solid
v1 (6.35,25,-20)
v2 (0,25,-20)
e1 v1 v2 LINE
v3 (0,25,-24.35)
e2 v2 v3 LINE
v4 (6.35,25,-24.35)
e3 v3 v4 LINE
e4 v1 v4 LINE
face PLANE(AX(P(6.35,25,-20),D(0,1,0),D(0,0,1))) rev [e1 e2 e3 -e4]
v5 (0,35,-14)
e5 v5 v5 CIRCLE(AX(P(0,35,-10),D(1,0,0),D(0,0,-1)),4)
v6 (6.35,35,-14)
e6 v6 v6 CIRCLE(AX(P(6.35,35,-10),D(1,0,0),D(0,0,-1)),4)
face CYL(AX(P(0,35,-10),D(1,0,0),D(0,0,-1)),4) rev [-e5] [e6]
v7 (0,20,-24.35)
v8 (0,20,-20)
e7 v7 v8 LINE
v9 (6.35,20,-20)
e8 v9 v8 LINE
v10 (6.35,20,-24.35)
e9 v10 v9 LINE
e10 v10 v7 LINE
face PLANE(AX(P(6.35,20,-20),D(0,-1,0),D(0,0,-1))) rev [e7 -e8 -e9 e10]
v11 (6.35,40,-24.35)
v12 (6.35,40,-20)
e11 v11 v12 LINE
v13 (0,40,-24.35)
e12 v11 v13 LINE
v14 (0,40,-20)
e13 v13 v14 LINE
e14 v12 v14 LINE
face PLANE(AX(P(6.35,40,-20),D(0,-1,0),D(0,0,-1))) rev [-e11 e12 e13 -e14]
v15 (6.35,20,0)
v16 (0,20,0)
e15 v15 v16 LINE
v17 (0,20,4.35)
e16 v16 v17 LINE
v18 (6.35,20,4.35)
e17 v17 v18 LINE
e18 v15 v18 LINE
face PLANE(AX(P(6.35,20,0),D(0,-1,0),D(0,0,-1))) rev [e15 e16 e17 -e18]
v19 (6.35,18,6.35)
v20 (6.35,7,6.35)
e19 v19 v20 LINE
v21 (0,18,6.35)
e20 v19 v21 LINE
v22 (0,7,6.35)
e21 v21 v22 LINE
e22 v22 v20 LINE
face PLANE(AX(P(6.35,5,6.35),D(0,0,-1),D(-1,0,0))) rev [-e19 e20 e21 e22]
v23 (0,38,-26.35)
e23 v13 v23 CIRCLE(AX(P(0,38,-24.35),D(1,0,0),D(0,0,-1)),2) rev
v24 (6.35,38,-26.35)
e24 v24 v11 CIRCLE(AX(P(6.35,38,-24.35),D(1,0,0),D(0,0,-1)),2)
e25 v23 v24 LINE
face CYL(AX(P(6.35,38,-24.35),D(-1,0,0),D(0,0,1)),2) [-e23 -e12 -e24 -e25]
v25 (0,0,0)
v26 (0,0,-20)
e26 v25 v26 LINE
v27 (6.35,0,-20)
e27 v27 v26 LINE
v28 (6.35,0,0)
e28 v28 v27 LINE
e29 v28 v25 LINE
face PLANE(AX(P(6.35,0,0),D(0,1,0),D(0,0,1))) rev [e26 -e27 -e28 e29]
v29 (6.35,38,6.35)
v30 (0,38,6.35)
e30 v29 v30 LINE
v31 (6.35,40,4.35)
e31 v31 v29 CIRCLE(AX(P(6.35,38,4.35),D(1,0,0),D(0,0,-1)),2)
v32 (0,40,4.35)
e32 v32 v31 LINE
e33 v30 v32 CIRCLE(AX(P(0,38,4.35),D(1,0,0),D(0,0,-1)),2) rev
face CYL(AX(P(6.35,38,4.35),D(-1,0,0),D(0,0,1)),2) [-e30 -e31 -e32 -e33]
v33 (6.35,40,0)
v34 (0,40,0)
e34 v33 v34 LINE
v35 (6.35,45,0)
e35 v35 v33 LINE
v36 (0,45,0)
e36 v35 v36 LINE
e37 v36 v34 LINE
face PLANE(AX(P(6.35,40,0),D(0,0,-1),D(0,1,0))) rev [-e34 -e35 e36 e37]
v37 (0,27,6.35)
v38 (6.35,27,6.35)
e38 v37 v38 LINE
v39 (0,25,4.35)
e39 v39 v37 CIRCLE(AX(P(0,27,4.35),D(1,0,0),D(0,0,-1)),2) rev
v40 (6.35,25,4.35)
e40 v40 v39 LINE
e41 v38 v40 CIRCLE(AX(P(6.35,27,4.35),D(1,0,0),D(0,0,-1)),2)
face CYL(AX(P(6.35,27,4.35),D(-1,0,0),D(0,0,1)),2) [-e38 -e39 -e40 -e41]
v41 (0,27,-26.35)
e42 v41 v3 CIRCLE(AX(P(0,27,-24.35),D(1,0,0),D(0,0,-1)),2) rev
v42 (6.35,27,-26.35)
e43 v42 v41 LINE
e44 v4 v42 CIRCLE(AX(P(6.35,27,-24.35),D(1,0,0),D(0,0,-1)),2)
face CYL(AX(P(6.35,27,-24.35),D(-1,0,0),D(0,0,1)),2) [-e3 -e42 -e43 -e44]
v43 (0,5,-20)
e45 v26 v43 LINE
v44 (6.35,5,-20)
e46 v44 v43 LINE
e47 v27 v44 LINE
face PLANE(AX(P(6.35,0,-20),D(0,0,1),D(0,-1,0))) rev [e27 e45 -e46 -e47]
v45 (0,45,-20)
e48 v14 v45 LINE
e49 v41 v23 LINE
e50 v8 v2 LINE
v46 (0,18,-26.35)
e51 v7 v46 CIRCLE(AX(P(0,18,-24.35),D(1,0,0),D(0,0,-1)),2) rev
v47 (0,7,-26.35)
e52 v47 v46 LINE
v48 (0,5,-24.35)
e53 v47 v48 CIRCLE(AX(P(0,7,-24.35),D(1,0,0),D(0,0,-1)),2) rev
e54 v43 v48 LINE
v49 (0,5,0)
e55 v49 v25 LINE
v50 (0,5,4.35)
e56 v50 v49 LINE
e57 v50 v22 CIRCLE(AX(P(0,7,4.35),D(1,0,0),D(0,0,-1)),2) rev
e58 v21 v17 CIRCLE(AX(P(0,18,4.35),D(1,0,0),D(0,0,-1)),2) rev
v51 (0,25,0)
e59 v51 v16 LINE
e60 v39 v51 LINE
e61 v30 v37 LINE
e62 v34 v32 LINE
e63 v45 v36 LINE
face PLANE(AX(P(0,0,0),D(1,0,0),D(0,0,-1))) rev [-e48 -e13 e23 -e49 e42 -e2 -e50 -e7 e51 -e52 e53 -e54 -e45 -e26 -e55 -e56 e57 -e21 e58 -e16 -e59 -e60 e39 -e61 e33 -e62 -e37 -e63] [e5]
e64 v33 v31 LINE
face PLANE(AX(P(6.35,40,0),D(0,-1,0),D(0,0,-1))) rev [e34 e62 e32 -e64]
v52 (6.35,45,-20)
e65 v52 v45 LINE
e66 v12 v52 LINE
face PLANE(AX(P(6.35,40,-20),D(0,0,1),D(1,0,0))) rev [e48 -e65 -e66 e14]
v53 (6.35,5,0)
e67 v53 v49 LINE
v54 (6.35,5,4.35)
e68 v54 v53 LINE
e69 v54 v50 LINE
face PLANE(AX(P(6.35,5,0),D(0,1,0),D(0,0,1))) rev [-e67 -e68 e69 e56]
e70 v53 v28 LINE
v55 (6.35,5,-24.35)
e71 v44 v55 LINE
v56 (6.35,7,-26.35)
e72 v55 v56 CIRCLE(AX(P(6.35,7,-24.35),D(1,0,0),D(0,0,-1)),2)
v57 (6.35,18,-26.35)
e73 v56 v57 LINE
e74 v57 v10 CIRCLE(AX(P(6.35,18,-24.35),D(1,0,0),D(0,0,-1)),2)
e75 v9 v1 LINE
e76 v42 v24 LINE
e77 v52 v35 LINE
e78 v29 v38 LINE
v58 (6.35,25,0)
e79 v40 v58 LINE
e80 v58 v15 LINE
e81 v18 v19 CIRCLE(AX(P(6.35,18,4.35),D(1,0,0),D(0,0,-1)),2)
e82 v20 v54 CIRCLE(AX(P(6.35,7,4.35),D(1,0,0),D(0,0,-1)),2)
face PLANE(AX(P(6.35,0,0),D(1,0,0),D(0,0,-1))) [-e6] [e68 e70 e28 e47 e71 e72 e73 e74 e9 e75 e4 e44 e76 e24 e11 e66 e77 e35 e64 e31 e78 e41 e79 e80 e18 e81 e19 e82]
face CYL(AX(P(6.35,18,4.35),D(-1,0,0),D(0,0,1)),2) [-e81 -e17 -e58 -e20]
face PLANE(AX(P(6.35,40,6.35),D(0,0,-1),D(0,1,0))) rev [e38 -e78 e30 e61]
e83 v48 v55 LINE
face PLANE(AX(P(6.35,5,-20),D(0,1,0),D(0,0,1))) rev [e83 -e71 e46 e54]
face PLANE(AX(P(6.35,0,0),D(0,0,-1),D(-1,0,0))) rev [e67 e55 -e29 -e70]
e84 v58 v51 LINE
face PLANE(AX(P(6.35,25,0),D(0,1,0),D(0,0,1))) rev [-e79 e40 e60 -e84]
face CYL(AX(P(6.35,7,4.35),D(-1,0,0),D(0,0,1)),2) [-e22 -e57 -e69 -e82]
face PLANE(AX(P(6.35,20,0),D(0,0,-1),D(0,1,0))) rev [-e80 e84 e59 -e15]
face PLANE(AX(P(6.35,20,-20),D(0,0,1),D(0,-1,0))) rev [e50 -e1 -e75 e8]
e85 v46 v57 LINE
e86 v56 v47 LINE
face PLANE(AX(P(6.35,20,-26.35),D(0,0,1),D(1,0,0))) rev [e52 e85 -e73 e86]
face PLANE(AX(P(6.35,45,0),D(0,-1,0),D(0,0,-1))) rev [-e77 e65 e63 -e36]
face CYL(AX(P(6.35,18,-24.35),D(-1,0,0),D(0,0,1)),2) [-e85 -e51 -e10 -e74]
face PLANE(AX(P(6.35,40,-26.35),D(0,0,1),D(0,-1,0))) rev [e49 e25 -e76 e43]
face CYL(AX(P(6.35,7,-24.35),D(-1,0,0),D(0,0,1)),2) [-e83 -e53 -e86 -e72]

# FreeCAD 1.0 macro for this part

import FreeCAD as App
import Part
import Sketcher
from FreeCAD import Vector


def edges_at(feature, points):
    """Names of the edges that pass closest to the given points."""
    edges = feature.Shape.Edges
    near = lambda p: min(range(len(edges)), key=lambda i: edges[i].distToShape(Part.Vertex(*p))[0])
    return sorted({f"Edge{near(p) + 1}" for p in points})


def add_polygon(sketch, points):
    """Adds a closed chain of lines whose ends are joined by coincident constraints."""
    first, n = sketch.GeometryCount, len(points)
    for a, b in zip(points, points[1:] + points[:1]):
        sketch.addGeometry(Part.LineSegment(App.Vector(*a, 0), App.Vector(*b, 0)), False)
    for i in range(n):
        sketch.addConstraint(Sketcher.Constraint("Coincident", first + i, 2, first + (i + 1) % n, 1))

doc = App.newDocument("Part")
body = doc.addObject("PartDesign::Body", "Body")

# Sketch on YZ plane
sketch1 = body.newObject("Sketcher::SketchObject", "Sketch")
sketch1.AttachmentSupport = (doc.getObject("YZ_Plane"), [""])
sketch1.MapMode = "FlatFace"
add_polygon(sketch1, [(45, 0), (40, 0), (40, 6.35), (25, 6.35), (25, 0), (20, 0), (20, 6.35), (5, 6.35), (5, 0), (0, 0), (0, -20), (5, -20), (5, -26.35), (20, -26.35), (20, -20), (25, -20), (25, -26.35), (40, -26.35), (40, -20), (45, -20)])  # lines 0-19
sketch1.addConstraint(Sketcher.Constraint("Horizontal", 0))
sketch1.addConstraint(Sketcher.Constraint("Vertical", 1))
sketch1.addConstraint(Sketcher.Constraint("Horizontal", 2))
sketch1.addConstraint(Sketcher.Constraint("Vertical", 3))
sketch1.addConstraint(Sketcher.Constraint("Horizontal", 4))
sketch1.addConstraint(Sketcher.Constraint("Vertical", 5))
sketch1.addConstraint(Sketcher.Constraint("Horizontal", 6))
sketch1.addConstraint(Sketcher.Constraint("Vertical", 7))
sketch1.addConstraint(Sketcher.Constraint("Horizontal", 8))
sketch1.addConstraint(Sketcher.Constraint("Vertical", 9))
sketch1.addConstraint(Sketcher.Constraint("Horizontal", 10))
sketch1.addConstraint(Sketcher.Constraint("Vertical", 11))
sketch1.addConstraint(Sketcher.Constraint("Horizontal", 12))
sketch1.addConstraint(Sketcher.Constraint("Vertical", 13))
sketch1.addConstraint(Sketcher.Constraint("Horizontal", 14))
sketch1.addConstraint(Sketcher.Constraint("Vertical", 15))
sketch1.addConstraint(Sketcher.Constraint("Horizontal", 16))
sketch1.addConstraint(Sketcher.Constraint("Vertical", 17))
sketch1.addConstraint(Sketcher.Constraint("Horizontal", 18))
sketch1.addConstraint(Sketcher.Constraint("Vertical", 19))
sketch1.addConstraint(Sketcher.Constraint("Coincident", 8, 2, -1, 1))
sketch1.addConstraint(Sketcher.Constraint("PointOnObject", 0, 2, -1))
sketch1.addConstraint(Sketcher.Constraint("PointOnObject", 3, 2, -1))
sketch1.addConstraint(Sketcher.Constraint("Horizontal", 2, 2, 5, 2))
sketch1.addConstraint(Sketcher.Constraint("Horizontal", 10, 2, 13, 2))
sketch1.addConstraint(Sketcher.Constraint("Horizontal", 12, 2, 15, 2))
sketch1.addConstraint(Sketcher.Constraint("Horizontal", 14, 2, 17, 2))
sketch1.addConstraint(Sketcher.Constraint("Vertical", 7, 2, 10, 2))
sketch1.addConstraint(Sketcher.Constraint("Vertical", 5, 2, 12, 2))
sketch1.addConstraint(Sketcher.Constraint("Vertical", 3, 2, 14, 2))
sketch1.addConstraint(Sketcher.Constraint("Vertical", 1, 2, 16, 2))
sketch1.addConstraint(Sketcher.Constraint("Equal", 0, 4))
sketch1.addConstraint(Sketcher.Constraint("Equal", 2, 6))
sketch1.addConstraint(Sketcher.Constraint("Equal", 4, 8))
sketch1.addConstraint(Sketcher.Constraint("Equal", 7, 11))
sketch1.addConstraint(Sketcher.Constraint("DistanceX", 0, 2, 0, 1, 5.0))
sketch1.addConstraint(Sketcher.Constraint("DistanceX", 2, 2, 2, 1, 15.0))
sketch1.addConstraint(Sketcher.Constraint("DistanceY", 9, 2, 9, 1, 20.0))
sketch1.addConstraint(Sketcher.Constraint("DistanceY", 1, 1, 1, 2, 6.35))
pad1 = body.newObject("PartDesign::Pad", "Pad")
pad1.Profile = sketch1
pad1.Length = 6.35
doc.recompute()

fillet = body.newObject("PartDesign::Fillet", "Fillet")
fillet.Base = (pad1, edges_at(pad1, [
    (3.175, 5, 6.35),
    (3.175, 20, 6.35),
    (3.175, 25, 6.35),
    (3.175, 40, 6.35),
    (3.175, 40, -26.35),
    (3.175, 25, -26.35),
    (3.175, 20, -26.35),
    (3.175, 5, -26.35),
]))
fillet.Radius = 2

# Sketch on YZ plane
sketch2 = body.newObject("Sketcher::SketchObject", "Sketch001")
sketch2.AttachmentSupport = (doc.getObject("YZ_Plane"), [""])
sketch2.MapMode = "FlatFace"
sketch2.AttachmentOffset = App.Placement(Vector(0, 0, 6.35), App.Rotation())
sketch2.addGeometry(Part.Circle(Vector(35, -10, 0), Vector(0, 0, 1), 4), False)
sketch2.addConstraint(Sketcher.Constraint("Diameter", 0, 8.0))
sketch2.addConstraint(Sketcher.Constraint("DistanceX", -1, 1, 0, 3, 35.0))
sketch2.addConstraint(Sketcher.Constraint("DistanceY", 0, 3, -1, 1, 10.0))
pocket1 = body.newObject("PartDesign::Pocket", "Pocket")
pocket1.Profile = sketch2
pocket1.Type = "ThroughAll"

doc.recompute()
